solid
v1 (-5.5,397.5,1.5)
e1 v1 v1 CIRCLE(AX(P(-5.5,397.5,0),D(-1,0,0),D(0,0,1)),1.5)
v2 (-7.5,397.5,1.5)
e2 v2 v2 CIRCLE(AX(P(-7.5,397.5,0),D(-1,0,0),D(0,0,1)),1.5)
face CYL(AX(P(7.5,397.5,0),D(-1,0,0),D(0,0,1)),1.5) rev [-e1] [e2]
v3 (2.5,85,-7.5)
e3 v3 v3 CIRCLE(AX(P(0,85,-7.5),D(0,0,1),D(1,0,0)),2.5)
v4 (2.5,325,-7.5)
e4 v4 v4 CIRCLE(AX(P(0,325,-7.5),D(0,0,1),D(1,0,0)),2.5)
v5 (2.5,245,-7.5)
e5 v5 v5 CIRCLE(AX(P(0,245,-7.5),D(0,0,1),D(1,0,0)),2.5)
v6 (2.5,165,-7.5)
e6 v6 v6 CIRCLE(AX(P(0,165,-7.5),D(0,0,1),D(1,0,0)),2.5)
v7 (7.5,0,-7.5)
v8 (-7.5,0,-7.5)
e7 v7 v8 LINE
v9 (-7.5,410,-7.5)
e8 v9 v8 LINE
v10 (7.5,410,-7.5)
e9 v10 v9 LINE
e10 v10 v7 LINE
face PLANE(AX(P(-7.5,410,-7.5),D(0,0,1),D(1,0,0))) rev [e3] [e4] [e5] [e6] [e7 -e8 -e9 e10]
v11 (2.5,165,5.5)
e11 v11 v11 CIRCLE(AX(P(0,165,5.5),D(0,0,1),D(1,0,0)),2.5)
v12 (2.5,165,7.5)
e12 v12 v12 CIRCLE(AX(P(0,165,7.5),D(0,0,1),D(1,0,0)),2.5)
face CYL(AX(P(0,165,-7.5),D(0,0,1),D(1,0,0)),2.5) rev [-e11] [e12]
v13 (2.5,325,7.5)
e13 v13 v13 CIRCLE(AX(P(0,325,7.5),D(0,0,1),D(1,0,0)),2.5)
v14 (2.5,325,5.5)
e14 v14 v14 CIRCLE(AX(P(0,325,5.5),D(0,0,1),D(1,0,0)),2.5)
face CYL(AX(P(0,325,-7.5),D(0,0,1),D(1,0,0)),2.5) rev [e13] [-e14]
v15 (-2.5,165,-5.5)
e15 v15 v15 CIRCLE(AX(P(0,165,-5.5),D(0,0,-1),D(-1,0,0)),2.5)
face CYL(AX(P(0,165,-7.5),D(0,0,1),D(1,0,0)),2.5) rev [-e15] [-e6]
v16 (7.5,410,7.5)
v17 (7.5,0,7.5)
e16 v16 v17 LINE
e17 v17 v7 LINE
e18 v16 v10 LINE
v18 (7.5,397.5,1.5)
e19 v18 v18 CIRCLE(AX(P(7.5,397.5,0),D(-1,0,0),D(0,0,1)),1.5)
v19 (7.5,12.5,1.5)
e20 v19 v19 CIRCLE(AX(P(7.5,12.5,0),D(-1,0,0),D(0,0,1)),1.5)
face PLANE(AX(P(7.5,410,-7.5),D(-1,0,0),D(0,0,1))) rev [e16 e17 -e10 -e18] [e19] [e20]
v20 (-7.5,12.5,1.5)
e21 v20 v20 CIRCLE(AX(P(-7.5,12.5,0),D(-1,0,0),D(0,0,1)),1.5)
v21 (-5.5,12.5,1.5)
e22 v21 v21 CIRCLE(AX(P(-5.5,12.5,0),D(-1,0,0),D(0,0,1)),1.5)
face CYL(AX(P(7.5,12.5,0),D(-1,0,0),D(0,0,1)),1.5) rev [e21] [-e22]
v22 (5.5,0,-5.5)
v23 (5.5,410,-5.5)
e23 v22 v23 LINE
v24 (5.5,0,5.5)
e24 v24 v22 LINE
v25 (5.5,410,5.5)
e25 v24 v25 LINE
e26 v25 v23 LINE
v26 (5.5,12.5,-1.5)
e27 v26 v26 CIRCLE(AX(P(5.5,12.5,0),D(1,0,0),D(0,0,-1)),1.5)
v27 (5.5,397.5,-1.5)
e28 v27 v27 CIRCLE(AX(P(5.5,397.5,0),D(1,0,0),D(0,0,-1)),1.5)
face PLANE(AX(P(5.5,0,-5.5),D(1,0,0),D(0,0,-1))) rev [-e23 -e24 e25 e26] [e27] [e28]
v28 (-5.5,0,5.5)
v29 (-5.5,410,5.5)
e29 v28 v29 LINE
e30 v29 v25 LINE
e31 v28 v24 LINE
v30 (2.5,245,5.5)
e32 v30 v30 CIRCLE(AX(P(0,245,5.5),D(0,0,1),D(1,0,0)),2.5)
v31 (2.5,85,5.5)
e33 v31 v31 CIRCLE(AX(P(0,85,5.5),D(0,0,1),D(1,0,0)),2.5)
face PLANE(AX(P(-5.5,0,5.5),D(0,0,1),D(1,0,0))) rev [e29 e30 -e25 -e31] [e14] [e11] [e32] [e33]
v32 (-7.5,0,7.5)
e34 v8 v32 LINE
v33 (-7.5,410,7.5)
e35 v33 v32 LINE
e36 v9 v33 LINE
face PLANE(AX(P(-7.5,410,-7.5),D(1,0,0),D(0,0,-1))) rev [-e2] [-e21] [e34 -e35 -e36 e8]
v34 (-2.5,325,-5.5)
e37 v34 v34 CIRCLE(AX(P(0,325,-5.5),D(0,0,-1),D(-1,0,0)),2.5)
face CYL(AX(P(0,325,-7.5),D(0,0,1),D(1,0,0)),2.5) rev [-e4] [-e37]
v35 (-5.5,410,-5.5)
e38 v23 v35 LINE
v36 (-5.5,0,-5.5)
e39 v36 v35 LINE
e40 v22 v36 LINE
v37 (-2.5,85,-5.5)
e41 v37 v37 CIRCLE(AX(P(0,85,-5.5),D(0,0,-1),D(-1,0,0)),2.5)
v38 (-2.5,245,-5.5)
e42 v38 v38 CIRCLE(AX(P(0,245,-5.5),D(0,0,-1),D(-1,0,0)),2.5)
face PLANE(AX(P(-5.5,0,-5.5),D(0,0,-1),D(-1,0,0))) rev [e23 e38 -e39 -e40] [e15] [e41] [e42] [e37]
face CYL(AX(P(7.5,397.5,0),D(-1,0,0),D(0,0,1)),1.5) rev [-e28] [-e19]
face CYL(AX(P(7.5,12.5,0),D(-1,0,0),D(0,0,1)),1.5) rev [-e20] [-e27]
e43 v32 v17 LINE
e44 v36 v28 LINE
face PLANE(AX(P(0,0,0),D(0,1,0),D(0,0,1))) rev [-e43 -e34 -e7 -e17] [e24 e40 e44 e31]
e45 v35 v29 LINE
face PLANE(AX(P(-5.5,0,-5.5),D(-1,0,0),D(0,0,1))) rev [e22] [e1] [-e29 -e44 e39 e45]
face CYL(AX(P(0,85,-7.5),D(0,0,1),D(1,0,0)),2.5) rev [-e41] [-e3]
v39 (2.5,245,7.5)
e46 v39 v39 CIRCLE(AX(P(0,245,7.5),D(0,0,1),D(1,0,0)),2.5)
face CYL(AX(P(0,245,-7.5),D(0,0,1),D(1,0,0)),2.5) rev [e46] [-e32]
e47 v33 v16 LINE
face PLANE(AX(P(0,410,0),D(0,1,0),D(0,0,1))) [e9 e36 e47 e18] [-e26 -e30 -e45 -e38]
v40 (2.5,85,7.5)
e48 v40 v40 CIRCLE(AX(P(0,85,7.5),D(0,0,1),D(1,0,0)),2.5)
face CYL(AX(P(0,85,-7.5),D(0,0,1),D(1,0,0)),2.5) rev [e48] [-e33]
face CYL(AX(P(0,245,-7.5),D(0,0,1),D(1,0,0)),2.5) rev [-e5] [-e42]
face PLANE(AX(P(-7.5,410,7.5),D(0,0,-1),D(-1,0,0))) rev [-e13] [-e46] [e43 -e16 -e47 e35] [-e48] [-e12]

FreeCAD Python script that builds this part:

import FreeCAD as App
import Part
import Sketcher

V = App.Vector

doc = App.newDocument("Part")
params = doc.addObject("Spreadsheet::Sheet", "Params")
for row, (alias, value) in enumerate([
    ("sketch1_width", "15 mm"),
    ("pad1_length", "410 mm"),
    ("sketch2_width", "11 mm"),
    ("pocket1_length", "410 mm"),
    ("sketch3_diameter", "5 mm"),
    ("pocket2_length", "15 mm"),
    ("sketch4_diameter", "3 mm"),
    ("pocket3_length", "15 mm"),
], start=1):
    params.set(f"A{row}", alias)
    params.set(f"B{row}", "=" + value)
    params.setAlias(f"B{row}", alias)

body = doc.addObject("PartDesign::Body", "Body")

# Sketch on XZ plane
sketch1 = body.newObject("Sketcher::SketchObject", "Sketch")
sketch1.AttachmentSupport = (doc.getObject("XZ_Plane"), [""])
sketch1.MapMode = "FlatFace"
sketch1.addGeometry(Part.LineSegment(V(-8, -8, 0), V(-8, 8, 0)), False)
sketch1.addGeometry(Part.LineSegment(V(-8, 8, 0), V(8, 8, 0)), False)
sketch1.addGeometry(Part.LineSegment(V(8, 8, 0), V(8, -8, 0)), False)
sketch1.addGeometry(Part.LineSegment(V(8, -8, 0), V(-8, -8, 0)), False)
sketch1.addConstraint(Sketcher.Constraint("Coincident", 0, 2, 1, 1))
sketch1.addConstraint(Sketcher.Constraint("Coincident", 1, 2, 2, 1))
sketch1.addConstraint(Sketcher.Constraint("Coincident", 2, 2, 3, 1))
sketch1.addConstraint(Sketcher.Constraint("Coincident", 3, 2, 0, 1))
sketch1.addConstraint(Sketcher.Constraint("Vertical", 0))
sketch1.addConstraint(Sketcher.Constraint("Horizontal", 1))
sketch1.addConstraint(Sketcher.Constraint("Vertical", 2))
sketch1.addConstraint(Sketcher.Constraint("Horizontal", 3))
sketch1.addConstraint(Sketcher.Constraint("Symmetric", 0, 2, 2, 2, -1, 1))
sketch1.addConstraint(Sketcher.Constraint("Equal", 3, 0))
sketch1.addConstraint(Sketcher.Constraint("DistanceX", 1, 1, 1, 2, 15.0))
sketch1.setExpression("Constraints[10]", "Params.sketch1_width")
pad1 = body.newObject("PartDesign::Pad", "Pad")
pad1.Profile = sketch1
pad1.setExpression("Length", "Params.pad1_length")
pad1.Reversed = True

# Sketch on XZ plane
sketch2 = body.newObject("Sketcher::SketchObject", "Sketch001")
sketch2.AttachmentSupport = (doc.getObject("XZ_Plane"), [""])
sketch2.MapMode = "FlatFace"
sketch2.AttachmentOffset = App.Placement(V(0, 0, -410), App.Rotation())
sketch2.addGeometry(Part.LineSegment(V(-6, -6, 0), V(-6, 6, 0)), False)
sketch2.addGeometry(Part.LineSegment(V(-6, 6, 0), V(6, 6, 0)), False)
sketch2.addGeometry(Part.LineSegment(V(6, 6, 0), V(6, -6, 0)), False)
sketch2.addGeometry(Part.LineSegment(V(6, -6, 0), V(-6, -6, 0)), False)
sketch2.addConstraint(Sketcher.Constraint("Coincident", 0, 2, 1, 1))
sketch2.addConstraint(Sketcher.Constraint("Coincident", 1, 2, 2, 1))
sketch2.addConstraint(Sketcher.Constraint("Coincident", 2, 2, 3, 1))
sketch2.addConstraint(Sketcher.Constraint("Coincident", 3, 2, 0, 1))
sketch2.addConstraint(Sketcher.Constraint("Vertical", 0))
sketch2.addConstraint(Sketcher.Constraint("Horizontal", 1))
sketch2.addConstraint(Sketcher.Constraint("Vertical", 2))
sketch2.addConstraint(Sketcher.Constraint("Horizontal", 3))
sketch2.addConstraint(Sketcher.Constraint("Symmetric", 0, 2, 2, 2, -1, 1))
sketch2.addConstraint(Sketcher.Constraint("Equal", 3, 0))
sketch2.addConstraint(Sketcher.Constraint("DistanceX", 1, 1, 1, 2, 11.0))
sketch2.setExpression("Constraints[10]", "Params.sketch2_width")
pocket1 = body.newObject("PartDesign::Pocket", "Pocket")
pocket1.Profile = sketch2
pocket1.setExpression("Length", "Params.pocket1_length")
pocket1.Reversed = True

# Sketch on XY plane
sketch3 = body.newObject("Sketcher::SketchObject", "Sketch002")
sketch3.AttachmentSupport = (doc.getObject("XY_Plane"), [""])
sketch3.MapMode = "FlatFace"
sketch3.AttachmentOffset = App.Placement(V(0, 0, 7.5), App.Rotation())
sketch3.addGeometry(Part.Circle(V(0, 85, 0), V(0, 0, 1), 2.5), False)
sketch3.addGeometry(Part.Circle(V(0, 165, 0), V(0, 0, 1), 2.5), False)
sketch3.addGeometry(Part.Circle(V(0, 245, 0), V(0, 0, 1), 2.5), False)
sketch3.addGeometry(Part.Circle(V(0, 325, 0), V(0, 0, 1), 2.5), False)
sketch3.addConstraint(Sketcher.Constraint("Equal", 0, 1))
sketch3.addConstraint(Sketcher.Constraint("Equal", 1, 2))
sketch3.addConstraint(Sketcher.Constraint("Equal", 2, 3))
sketch3.addConstraint(Sketcher.Constraint("PointOnObject", 0, 3, -2))
sketch3.addConstraint(Sketcher.Constraint("PointOnObject", 1, 3, -2))
sketch3.addConstraint(Sketcher.Constraint("PointOnObject", 2, 3, -2))
sketch3.addConstraint(Sketcher.Constraint("PointOnObject", 3, 3, -2))
sketch3.addConstraint(Sketcher.Constraint("Diameter", 0, 5.0))
sketch3.addConstraint(Sketcher.Constraint("DistanceY", -1, 1, 0, 3, 85.0))
sketch3.addConstraint(Sketcher.Constraint("DistanceY", -1, 1, 1, 3, 165.0))
sketch3.addConstraint(Sketcher.Constraint("DistanceY", -1, 1, 2, 3, 245.0))
sketch3.addConstraint(Sketcher.Constraint("DistanceY", -1, 1, 3, 3, 325.0))
sketch3.setExpression("Constraints[7]", "Params.sketch3_diameter")
pocket2 = body.newObject("PartDesign::Pocket", "Pocket001")
pocket2.Profile = sketch3
pocket2.setExpression("Length", "Params.pocket2_length")

# Sketch on YZ plane
sketch4 = body.newObject("Sketcher::SketchObject", "Sketch003")
sketch4.AttachmentSupport = (doc.getObject("YZ_Plane"), [""])
sketch4.MapMode = "FlatFace"
sketch4.AttachmentOffset = App.Placement(V(0, 0, -7.5), App.Rotation())
sketch4.addGeometry(Part.Circle(V(12.5, 0, 0), V(0, 0, 1), 1.5), False)
sketch4.addGeometry(Part.Circle(V(397.5, 0, 0), V(0, 0, 1), 1.5), False)
sketch4.addConstraint(Sketcher.Constraint("Equal", 0, 1))
sketch4.addConstraint(Sketcher.Constraint("PointOnObject", 0, 3, -1))
sketch4.addConstraint(Sketcher.Constraint("PointOnObject", 1, 3, -1))
sketch4.addConstraint(Sketcher.Constraint("Diameter", 0, 3.0))
sketch4.addConstraint(Sketcher.Constraint("DistanceX", 0, 3, 1, 3, 385.0))
sketch4.addConstraint(Sketcher.Constraint("DistanceX", -1, 1, 0, 3, 12.5))
sketch4.setExpression("Constraints[3]", "Params.sketch4_diameter")
pocket3 = body.newObject("PartDesign::Pocket", "Pocket002")
pocket3.Profile = sketch4
pocket3.setExpression("Length", "Params.pocket3_length")
pocket3.Reversed = True

doc.recompute()
